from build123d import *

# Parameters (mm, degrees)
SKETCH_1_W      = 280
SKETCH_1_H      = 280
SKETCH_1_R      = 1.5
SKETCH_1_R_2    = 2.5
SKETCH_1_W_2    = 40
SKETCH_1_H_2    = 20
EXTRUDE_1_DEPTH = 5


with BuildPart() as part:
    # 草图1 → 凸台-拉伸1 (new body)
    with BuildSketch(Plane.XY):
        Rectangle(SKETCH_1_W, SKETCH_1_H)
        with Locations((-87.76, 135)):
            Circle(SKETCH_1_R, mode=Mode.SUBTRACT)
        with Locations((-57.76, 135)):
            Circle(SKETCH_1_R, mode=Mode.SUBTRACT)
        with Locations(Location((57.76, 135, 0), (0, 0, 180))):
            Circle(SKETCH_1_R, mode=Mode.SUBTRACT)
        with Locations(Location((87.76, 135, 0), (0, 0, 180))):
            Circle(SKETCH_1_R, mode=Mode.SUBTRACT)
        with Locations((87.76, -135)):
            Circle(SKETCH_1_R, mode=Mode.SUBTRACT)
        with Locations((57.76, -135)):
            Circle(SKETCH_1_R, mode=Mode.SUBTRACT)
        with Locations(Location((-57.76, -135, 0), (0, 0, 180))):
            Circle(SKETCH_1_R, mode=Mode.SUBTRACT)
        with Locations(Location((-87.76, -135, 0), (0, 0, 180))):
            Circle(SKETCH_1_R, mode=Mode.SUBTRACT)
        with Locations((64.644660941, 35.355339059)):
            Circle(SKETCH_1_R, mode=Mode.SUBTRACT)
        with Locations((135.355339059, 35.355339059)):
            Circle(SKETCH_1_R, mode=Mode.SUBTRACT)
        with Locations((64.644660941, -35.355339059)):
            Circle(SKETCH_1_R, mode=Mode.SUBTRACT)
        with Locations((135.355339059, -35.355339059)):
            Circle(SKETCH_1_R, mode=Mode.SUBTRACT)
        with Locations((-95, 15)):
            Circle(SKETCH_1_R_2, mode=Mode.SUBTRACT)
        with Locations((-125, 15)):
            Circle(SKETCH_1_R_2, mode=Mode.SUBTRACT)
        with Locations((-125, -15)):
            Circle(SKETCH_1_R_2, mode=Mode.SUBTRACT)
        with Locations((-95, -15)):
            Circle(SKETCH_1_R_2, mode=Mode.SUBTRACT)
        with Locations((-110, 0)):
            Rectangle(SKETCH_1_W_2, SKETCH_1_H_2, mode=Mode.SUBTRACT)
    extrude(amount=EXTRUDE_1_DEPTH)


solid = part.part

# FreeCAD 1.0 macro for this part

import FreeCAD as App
import Part
import Sketcher
from FreeCAD import Vector

doc = App.newDocument("Part")
params = doc.addObject("Spreadsheet::Sheet", "Params")
for row, (alias, value) in enumerate([
    ("sketch1_diameter", "3 mm"),
    ("sketch1_diameter2", "5 mm"),
    ("sketch1_width", "280 mm"),
    ("sketch1_width2", "40 mm"),
    ("sketch1_height", "20 mm"),
    ("pad1_length", "5 mm"),
], start=1):
    params.set(f"A{row}", alias)
    params.set(f"B{row}", "=" + value)
    params.setAlias(f"B{row}", alias)

body = doc.addObject("PartDesign::Body", "Body")

sketch1 = doc.addObject("Sketcher::SketchObject", "Sketch")
body.addObject(sketch1)
sketch1.AttachmentSupport = (doc.XY_Plane, [""])
sketch1.MapMode = "FlatFace"
sketch1.addGeometry(Part.LineSegment(Vector(-140, 140, 0), Vector(-140, -140, 0)), False)
sketch1.addGeometry(Part.LineSegment(Vector(-140, -140, 0), Vector(140, -140, 0)), False)
sketch1.addGeometry(Part.LineSegment(Vector(140, -140, 0), Vector(140, 140, 0)), False)
sketch1.addGeometry(Part.LineSegment(Vector(140, 140, 0), Vector(-140, 140, 0)), False)
sketch1.addGeometry(Part.Circle(Vector(-87.8, -135, 0), Vector(0, 0, 1), 1.5), False)
sketch1.addGeometry(Part.Circle(Vector(-57.8, -135, 0), Vector(0, 0, 1), 1.5), False)
sketch1.addGeometry(Part.Circle(Vector(-125, -15, 0), Vector(0, 0, 1), 2.5), False)
sketch1.addGeometry(Part.Circle(Vector(-95, -15, 0), Vector(0, 0, 1), 2.5), False)
sketch1.addGeometry(Part.Circle(Vector(57.8, -135, 0), Vector(0, 0, 1), 1.5), False)
sketch1.addGeometry(Part.Circle(Vector(87.8, -135, 0), Vector(0, 0, 1), 1.5), False)
sketch1.addGeometry(Part.Circle(Vector(64.6, -35.4, 0), Vector(0, 0, 1), 1.5), False)
sketch1.addGeometry(Part.Circle(Vector(135.4, -35.4, 0), Vector(0, 0, 1), 1.5), False)
sketch1.addGeometry(Part.Circle(Vector(-125, 15, 0), Vector(0, 0, 1), 2.5), False)
sketch1.addGeometry(Part.LineSegment(Vector(-90, -10, 0), Vector(-130, -10, 0)), False)
sketch1.addGeometry(Part.LineSegment(Vector(-130, -10, 0), Vector(-130, 10, 0)), False)
sketch1.addGeometry(Part.LineSegment(Vector(-130, 10, 0), Vector(-90, 10, 0)), False)
sketch1.addGeometry(Part.LineSegment(Vector(-90, 10, 0), Vector(-90, -10, 0)), False)
sketch1.addGeometry(Part.Circle(Vector(-95, 15, 0), Vector(0, 0, 1), 2.5), False)
sketch1.addGeometry(Part.Circle(Vector(-87.8, 135, 0), Vector(0, 0, 1), 1.5), False)
sketch1.addGeometry(Part.Circle(Vector(-57.8, 135, 0), Vector(0, 0, 1), 1.5), False)
sketch1.addGeometry(Part.Circle(Vector(64.6, 35.4, 0), Vector(0, 0, 1), 1.5), False)
sketch1.addGeometry(Part.Circle(Vector(135.4, 35.4, 0), Vector(0, 0, 1), 1.5), False)
sketch1.addGeometry(Part.Circle(Vector(57.8, 135, 0), Vector(0, 0, 1), 1.5), False)
sketch1.addGeometry(Part.Circle(Vector(87.8, 135, 0), Vector(0, 0, 1), 1.5), False)
sketch1.addConstraint(Sketcher.Constraint("Coincident", 0, 2, 1, 1))
sketch1.addConstraint(Sketcher.Constraint("Coincident", 1, 2, 2, 1))
sketch1.addConstraint(Sketcher.Constraint("Coincident", 2, 2, 3, 1))
sketch1.addConstraint(Sketcher.Constraint("Coincident", 3, 2, 0, 1))
sketch1.addConstraint(Sketcher.Constraint("Coincident", 13, 2, 14, 1))
sketch1.addConstraint(Sketcher.Constraint("Coincident", 14, 2, 15, 1))
sketch1.addConstraint(Sketcher.Constraint("Coincident", 15, 2, 16, 1))
sketch1.addConstraint(Sketcher.Constraint("Coincident", 16, 2, 13, 1))
sketch1.addConstraint(Sketcher.Constraint("Vertical", 0))
sketch1.addConstraint(Sketcher.Constraint("Horizontal", 1))
sketch1.addConstraint(Sketcher.Constraint("Vertical", 2))
sketch1.addConstraint(Sketcher.Constraint("Horizontal", 3))
sketch1.addConstraint(Sketcher.Constraint("Horizontal", 13))
sketch1.addConstraint(Sketcher.Constraint("Vertical", 14))
sketch1.addConstraint(Sketcher.Constraint("Horizontal", 15))
sketch1.addConstraint(Sketcher.Constraint("Vertical", 16))
sketch1.addConstraint(Sketcher.Constraint("Equal", 4, 5))
sketch1.addConstraint(Sketcher.Constraint("Equal", 6, 7))
sketch1.addConstraint(Sketcher.Constraint("Equal", 5, 8))
sketch1.addConstraint(Sketcher.Constraint("Equal", 8, 9))
sketch1.addConstraint(Sketcher.Constraint("Equal", 9, 10))
sketch1.addConstraint(Sketcher.Constraint("Equal", 10, 11))
sketch1.addConstraint(Sketcher.Constraint("Equal", 7, 12))
sketch1.addConstraint(Sketcher.Constraint("Equal", 12, 17))
sketch1.addConstraint(Sketcher.Constraint("Equal", 11, 18))
sketch1.addConstraint(Sketcher.Constraint("Equal", 18, 19))
sketch1.addConstraint(Sketcher.Constraint("Equal", 19, 20))
sketch1.addConstraint(Sketcher.Constraint("Equal", 20, 21))
sketch1.addConstraint(Sketcher.Constraint("Equal", 21, 22))
sketch1.addConstraint(Sketcher.Constraint("Equal", 22, 23))
sketch1.addConstraint(Sketcher.Constraint("Symmetric", 9, 3, 18, 3, -1, 1))
sketch1.addConstraint(Sketcher.Constraint("Symmetric", 8, 3, 19, 3, -1, 1))
sketch1.addConstraint(Sketcher.Constraint("Symmetric", 5, 3, 22, 3, -1, 1))
sketch1.addConstraint(Sketcher.Constraint("Symmetric", 4, 3, 23, 3, -1, 1))
sketch1.addConstraint(Sketcher.Constraint("Symmetric", 0, 2, 2, 2, -1, 1))
sketch1.addConstraint(Sketcher.Constraint("Symmetric", 5, 3, 8, 3, -2))
sketch1.addConstraint(Sketcher.Constraint("Symmetric", 4, 3, 9, 3, -2))
sketch1.addConstraint(Sketcher.Constraint("Symmetric", 6, 3, 12, 3, -1))
sketch1.addConstraint(Sketcher.Constraint("Symmetric", 7, 3, 17, 3, -1))
sketch1.addConstraint(Sketcher.Constraint("Symmetric", 10, 3, 20, 3, -1))
sketch1.addConstraint(Sketcher.Constraint("Symmetric", 11, 3, 21, 3, -1))
sketch1.addConstraint(Sketcher.Constraint("Horizontal", 4, 3, 5, 3))
sketch1.addConstraint(Sketcher.Constraint("Horizontal", 6, 3, 7, 3))
sketch1.addConstraint(Sketcher.Constraint("Horizontal", 10, 3, 11, 3))
sketch1.addConstraint(Sketcher.Constraint("Equal", 3, 0))
sketch1.addConstraint(Sketcher.Constraint("Diameter", 4, 3.0))
sketch1.addConstraint(Sketcher.Constraint("Diameter", 6, 5.0))
sketch1.addConstraint(Sketcher.Constraint("DistanceX", 1, 1, 1, 2, 280.0))
sketch1.addConstraint(Sketcher.Constraint("DistanceX", 13, 2, 13, 1, 40.0))
sketch1.addConstraint(Sketcher.Constraint("DistanceY", 14, 1, 14, 2, 20.0))
sketch1.addConstraint(Sketcher.Constraint("DistanceY", 4, 3, -1, 1, 135.0))
sketch1.addConstraint(Sketcher.Constraint("DistanceX", 6, 3, -1, 1, 125.0))
sketch1.addConstraint(Sketcher.Constraint("DistanceY", 6, 3, -1, 1, 15.0))
sketch1.addConstraint(Sketcher.Constraint("DistanceX", 7, 3, -1, 1, 95.0))
sketch1.addConstraint(Sketcher.Constraint("DistanceX", 13, 2, -1, 1, 130.0))
sketch1.addConstraint(Sketcher.Constraint("DistanceY", 13, 2, -1, 1, 10.0))
sketch1.addConstraint(Sketcher.Constraint("DistanceX", 4, 3, 5, 3, 30.0))
sketch1.addConstraint(Sketcher.Constraint("DistanceX", 4, 3, -1, 1, 87.76))
sketch1.addConstraint(Sketcher.Constraint("DistanceX", -1, 1, 10, 3, 64.644661))
sketch1.addConstraint(Sketcher.Constraint("DistanceY", 10, 3, -1, 1, 35.355339))
sketch1.addConstraint(Sketcher.Constraint("DistanceX", -1, 1, 11, 3, 135.355339))
sketch1.setExpression("Constraints[45]", "Params.sketch1_diameter")
sketch1.setExpression("Constraints[46]", "Params.sketch1_diameter2")
sketch1.setExpression("Constraints[47]", "Params.sketch1_width")
sketch1.setExpression("Constraints[48]", "Params.sketch1_width2")
sketch1.setExpression("Constraints[49]", "Params.sketch1_height")
pad1 = doc.addObject("PartDesign::Pad", "Pad")
body.addObject(pad1)
pad1.Profile = sketch1
pad1.setExpression("Length", "Params.pad1_length")

doc.recompute()
